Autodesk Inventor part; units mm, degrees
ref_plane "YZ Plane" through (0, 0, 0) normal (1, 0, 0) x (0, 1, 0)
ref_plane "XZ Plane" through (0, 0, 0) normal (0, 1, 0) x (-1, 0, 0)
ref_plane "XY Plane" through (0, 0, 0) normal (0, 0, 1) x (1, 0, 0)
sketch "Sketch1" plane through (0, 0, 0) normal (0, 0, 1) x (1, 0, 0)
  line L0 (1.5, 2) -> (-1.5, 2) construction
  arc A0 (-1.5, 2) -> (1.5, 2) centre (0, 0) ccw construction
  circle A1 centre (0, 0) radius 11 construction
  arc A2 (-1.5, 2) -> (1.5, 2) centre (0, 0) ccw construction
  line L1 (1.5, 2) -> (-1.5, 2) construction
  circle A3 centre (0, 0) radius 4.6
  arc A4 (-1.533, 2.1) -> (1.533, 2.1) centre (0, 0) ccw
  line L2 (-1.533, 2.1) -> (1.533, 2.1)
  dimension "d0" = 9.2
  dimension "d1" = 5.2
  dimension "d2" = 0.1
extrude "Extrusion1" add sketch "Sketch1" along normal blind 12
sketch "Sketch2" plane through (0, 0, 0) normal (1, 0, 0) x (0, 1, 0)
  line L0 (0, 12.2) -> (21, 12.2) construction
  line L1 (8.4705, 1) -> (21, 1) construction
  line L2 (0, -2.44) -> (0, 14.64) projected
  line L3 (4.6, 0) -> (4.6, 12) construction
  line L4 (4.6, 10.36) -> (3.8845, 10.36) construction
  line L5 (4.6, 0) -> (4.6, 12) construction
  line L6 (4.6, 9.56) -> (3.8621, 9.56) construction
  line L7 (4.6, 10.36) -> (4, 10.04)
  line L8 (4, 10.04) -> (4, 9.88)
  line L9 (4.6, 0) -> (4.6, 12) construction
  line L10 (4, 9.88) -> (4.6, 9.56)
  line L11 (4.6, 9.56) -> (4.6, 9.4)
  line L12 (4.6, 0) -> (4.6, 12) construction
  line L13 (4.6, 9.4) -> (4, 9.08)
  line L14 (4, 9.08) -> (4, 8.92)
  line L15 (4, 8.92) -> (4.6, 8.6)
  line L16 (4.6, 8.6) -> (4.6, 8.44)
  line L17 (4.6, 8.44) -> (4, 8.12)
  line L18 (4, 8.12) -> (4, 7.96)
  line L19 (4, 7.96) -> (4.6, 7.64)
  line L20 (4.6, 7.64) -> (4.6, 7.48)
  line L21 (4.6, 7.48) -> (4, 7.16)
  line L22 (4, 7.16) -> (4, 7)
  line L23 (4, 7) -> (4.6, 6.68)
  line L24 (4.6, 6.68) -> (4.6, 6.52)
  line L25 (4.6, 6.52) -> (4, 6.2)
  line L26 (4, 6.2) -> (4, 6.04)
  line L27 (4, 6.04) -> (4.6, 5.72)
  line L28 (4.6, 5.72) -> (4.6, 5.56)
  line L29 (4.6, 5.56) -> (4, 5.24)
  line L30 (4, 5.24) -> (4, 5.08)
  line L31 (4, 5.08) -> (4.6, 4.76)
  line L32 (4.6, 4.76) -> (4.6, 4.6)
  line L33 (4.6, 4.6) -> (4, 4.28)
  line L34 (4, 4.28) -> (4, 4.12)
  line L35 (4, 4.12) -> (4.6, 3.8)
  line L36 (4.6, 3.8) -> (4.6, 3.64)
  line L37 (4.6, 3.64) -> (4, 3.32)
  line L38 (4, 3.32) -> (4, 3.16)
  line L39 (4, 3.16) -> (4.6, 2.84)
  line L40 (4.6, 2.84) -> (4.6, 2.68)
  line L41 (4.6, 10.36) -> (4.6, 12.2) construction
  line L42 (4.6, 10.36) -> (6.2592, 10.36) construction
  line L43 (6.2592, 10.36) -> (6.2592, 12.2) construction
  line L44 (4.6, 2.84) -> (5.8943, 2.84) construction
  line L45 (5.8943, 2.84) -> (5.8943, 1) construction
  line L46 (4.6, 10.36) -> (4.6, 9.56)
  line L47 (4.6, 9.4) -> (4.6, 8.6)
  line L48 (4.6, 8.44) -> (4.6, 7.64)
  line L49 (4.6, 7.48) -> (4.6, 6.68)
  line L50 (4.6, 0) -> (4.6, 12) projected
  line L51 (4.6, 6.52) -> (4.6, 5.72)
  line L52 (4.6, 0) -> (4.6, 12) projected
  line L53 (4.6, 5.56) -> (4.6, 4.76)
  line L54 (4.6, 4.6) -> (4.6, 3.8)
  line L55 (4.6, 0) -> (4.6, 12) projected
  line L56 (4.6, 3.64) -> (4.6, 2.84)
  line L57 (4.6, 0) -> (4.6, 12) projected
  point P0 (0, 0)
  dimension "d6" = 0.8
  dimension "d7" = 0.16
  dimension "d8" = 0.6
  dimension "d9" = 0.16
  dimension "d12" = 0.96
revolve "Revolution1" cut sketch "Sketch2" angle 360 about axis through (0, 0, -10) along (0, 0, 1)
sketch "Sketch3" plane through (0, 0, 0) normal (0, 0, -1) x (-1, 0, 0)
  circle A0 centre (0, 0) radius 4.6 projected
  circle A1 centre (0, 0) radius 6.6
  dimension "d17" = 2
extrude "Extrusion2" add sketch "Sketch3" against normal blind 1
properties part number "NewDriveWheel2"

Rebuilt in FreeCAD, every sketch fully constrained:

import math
import FreeCAD as App
import Part
import Sketcher
Q = App.Units.Quantity

doc = App.newDocument("Part")
body = doc.addObject("PartDesign::Body", "Body")

sketch1 = body.newObject("Sketcher::SketchObject", "Sketch")
sketch1.AttachmentSupport = (doc.getObject("XY_Plane"), [""])
sketch1.MapMode = "FlatFace"
sketch1.addGeometry(Part.Circle(App.Vector(0, 0, 0), App.Vector(0, 0, 1), 4.6), False)
sketch1.addGeometry(Part.ArcOfCircle(Part.Circle(App.Vector(0, 0, 0), App.Vector(0, 0, 1), 2.6), math.radians(126), math.radians(414)), False)
sketch1.addGeometry(Part.LineSegment(App.Vector(-1.5, 2.1, 0), App.Vector(1.5, 2.1, 0)), False)
sketch1.addConstraint(Sketcher.Constraint("Coincident", 1, 1, 2, 1))
sketch1.addConstraint(Sketcher.Constraint("Coincident", 2, 2, 1, 2))
sketch1.addConstraint(Sketcher.Constraint("Horizontal", 2))
sketch1.addConstraint(Sketcher.Constraint("Coincident", 0, 3, -1, 1))
sketch1.addConstraint(Sketcher.Constraint("Coincident", 1, 3, -1, 1))
sketch1.addConstraint(Sketcher.Constraint("Diameter", 0, Q("9.2 mm")))
sketch1.addConstraint(Sketcher.Constraint("Radius", 1, Q("2.6 mm")))
sketch1.addConstraint(Sketcher.Constraint("DistanceY", -1, 1, 1, 1, Q("2.1 mm")))
pad1 = body.newObject("PartDesign::Pad", "Pad")
pad1.Profile = sketch1
pad1.Length = 12

sketch2 = body.newObject("Sketcher::SketchObject", "Sketch001")
sketch2.AttachmentSupport = (doc.getObject("YZ_Plane"), [""])
sketch2.MapMode = "FlatFace"
sketch2.addGeometry(Part.LineSegment(App.Vector(4.6, 9.56, 0), App.Vector(4.6, 10.36, 0)), False)
sketch2.addGeometry(Part.LineSegment(App.Vector(4.6, 10.36, 0), App.Vector(4, 10.04, 0)), False)
sketch2.addGeometry(Part.LineSegment(App.Vector(4, 10.04, 0), App.Vector(4, 9.88, 0)), False)
sketch2.addGeometry(Part.LineSegment(App.Vector(4, 9.88, 0), App.Vector(4.6, 9.56, 0)), False)
sketch2.addGeometry(Part.LineSegment(App.Vector(4.6, 2.84, 0), App.Vector(4.6, 3.64, 0)), False)
sketch2.addGeometry(Part.LineSegment(App.Vector(4.6, 3.64, 0), App.Vector(4, 3.32, 0)), False)
sketch2.addGeometry(Part.LineSegment(App.Vector(4, 3.32, 0), App.Vector(4, 3.16, 0)), False)
sketch2.addGeometry(Part.LineSegment(App.Vector(4, 3.16, 0), App.Vector(4.6, 2.84, 0)), False)
sketch2.addGeometry(Part.LineSegment(App.Vector(4.6, 3.8, 0), App.Vector(4.6, 4.6, 0)), False)
sketch2.addGeometry(Part.LineSegment(App.Vector(4.6, 4.6, 0), App.Vector(4, 4.28, 0)), False)
sketch2.addGeometry(Part.LineSegment(App.Vector(4, 4.28, 0), App.Vector(4, 4.12, 0)), False)
sketch2.addGeometry(Part.LineSegment(App.Vector(4, 4.12, 0), App.Vector(4.6, 3.8, 0)), False)
sketch2.addGeometry(Part.LineSegment(App.Vector(4.6, 4.76, 0), App.Vector(4.6, 5.56, 0)), False)
sketch2.addGeometry(Part.LineSegment(App.Vector(4.6, 5.56, 0), App.Vector(4, 5.24, 0)), False)
sketch2.addGeometry(Part.LineSegment(App.Vector(4, 5.24, 0), App.Vector(4, 5.08, 0)), False)
sketch2.addGeometry(Part.LineSegment(App.Vector(4, 5.08, 0), App.Vector(4.6, 4.76, 0)), False)
sketch2.addGeometry(Part.LineSegment(App.Vector(4.6, 5.72, 0), App.Vector(4.6, 6.52, 0)), False)
sketch2.addGeometry(Part.LineSegment(App.Vector(4.6, 6.52, 0), App.Vector(4, 6.2, 0)), False)
sketch2.addGeometry(Part.LineSegment(App.Vector(4, 6.2, 0), App.Vector(4, 6.04, 0)), False)
sketch2.addGeometry(Part.LineSegment(App.Vector(4, 6.04, 0), App.Vector(4.6, 5.72, 0)), False)
sketch2.addGeometry(Part.LineSegment(App.Vector(4.6, 6.68, 0), App.Vector(4.6, 7.48, 0)), False)
sketch2.addGeometry(Part.LineSegment(App.Vector(4.6, 7.48, 0), App.Vector(4, 7.16, 0)), False)
sketch2.addGeometry(Part.LineSegment(App.Vector(4, 7.16, 0), App.Vector(4, 7, 0)), False)
sketch2.addGeometry(Part.LineSegment(App.Vector(4, 7, 0), App.Vector(4.6, 6.68, 0)), False)
sketch2.addGeometry(Part.LineSegment(App.Vector(4.6, 7.64, 0), App.Vector(4.6, 8.44, 0)), False)
sketch2.addGeometry(Part.LineSegment(App.Vector(4.6, 8.44, 0), App.Vector(4, 8.12, 0)), False)
sketch2.addGeometry(Part.LineSegment(App.Vector(4, 8.12, 0), App.Vector(4, 7.96, 0)), False)
sketch2.addGeometry(Part.LineSegment(App.Vector(4, 7.96, 0), App.Vector(4.6, 7.64, 0)), False)
sketch2.addGeometry(Part.LineSegment(App.Vector(4.6, 8.6, 0), App.Vector(4.6, 9.4, 0)), False)
sketch2.addGeometry(Part.LineSegment(App.Vector(4.6, 9.4, 0), App.Vector(4, 9.08, 0)), False)
sketch2.addGeometry(Part.LineSegment(App.Vector(4, 9.08, 0), App.Vector(4, 8.92, 0)), False)
sketch2.addGeometry(Part.LineSegment(App.Vector(4, 8.92, 0), App.Vector(4.6, 8.6, 0)), False)
sketch2.addConstraint(Sketcher.Constraint("Coincident", 0, 2, 1, 1))
sketch2.addConstraint(Sketcher.Constraint("Coincident", 1, 2, 2, 1))
sketch2.addConstraint(Sketcher.Constraint("Coincident", 2, 2, 3, 1))
sketch2.addConstraint(Sketcher.Constraint("Coincident", 3, 2, 0, 1))
sketch2.addConstraint(Sketcher.Constraint("Coincident", 4, 2, 5, 1))
sketch2.addConstraint(Sketcher.Constraint("Coincident", 5, 2, 6, 1))
sketch2.addConstraint(Sketcher.Constraint("Coincident", 6, 2, 7, 1))
sketch2.addConstraint(Sketcher.Constraint("Coincident", 7, 2, 4, 1))
sketch2.addConstraint(Sketcher.Constraint("Coincident", 8, 2, 9, 1))
sketch2.addConstraint(Sketcher.Constraint("Coincident", 9, 2, 10, 1))
sketch2.addConstraint(Sketcher.Constraint("Coincident", 10, 2, 11, 1))
sketch2.addConstraint(Sketcher.Constraint("Coincident", 11, 2, 8, 1))
sketch2.addConstraint(Sketcher.Constraint("Coincident", 12, 2, 13, 1))
sketch2.addConstraint(Sketcher.Constraint("Coincident", 13, 2, 14, 1))
sketch2.addConstraint(Sketcher.Constraint("Coincident", 14, 2, 15, 1))
sketch2.addConstraint(Sketcher.Constraint("Coincident", 15, 2, 12, 1))
sketch2.addConstraint(Sketcher.Constraint("Coincident", 16, 2, 17, 1))
sketch2.addConstraint(Sketcher.Constraint("Coincident", 17, 2, 18, 1))
sketch2.addConstraint(Sketcher.Constraint("Coincident", 18, 2, 19, 1))
sketch2.addConstraint(Sketcher.Constraint("Coincident", 19, 2, 16, 1))
sketch2.addConstraint(Sketcher.Constraint("Coincident", 20, 2, 21, 1))
sketch2.addConstraint(Sketcher.Constraint("Coincident", 21, 2, 22, 1))
sketch2.addConstraint(Sketcher.Constraint("Coincident", 22, 2, 23, 1))
sketch2.addConstraint(Sketcher.Constraint("Coincident", 23, 2, 20, 1))
sketch2.addConstraint(Sketcher.Constraint("Coincident", 24, 2, 25, 1))
sketch2.addConstraint(Sketcher.Constraint("Coincident", 25, 2, 26, 1))
sketch2.addConstraint(Sketcher.Constraint("Coincident", 26, 2, 27, 1))
sketch2.addConstraint(Sketcher.Constraint("Coincident", 27, 2, 24, 1))
sketch2.addConstraint(Sketcher.Constraint("Coincident", 28, 2, 29, 1))
sketch2.addConstraint(Sketcher.Constraint("Coincident", 29, 2, 30, 1))
sketch2.addConstraint(Sketcher.Constraint("Coincident", 30, 2, 31, 1))
sketch2.addConstraint(Sketcher.Constraint("Coincident", 31, 2, 28, 1))
sketch2.addConstraint(Sketcher.Constraint("Vertical", 0))
sketch2.addConstraint(Sketcher.Constraint("Vertical", 2))
sketch2.addConstraint(Sketcher.Constraint("Vertical", 4))
sketch2.addConstraint(Sketcher.Constraint("Vertical", 6))
sketch2.addConstraint(Sketcher.Constraint("Vertical", 8))
sketch2.addConstraint(Sketcher.Constraint("Vertical", 10))
sketch2.addConstraint(Sketcher.Constraint("Vertical", 12))
sketch2.addConstraint(Sketcher.Constraint("Vertical", 14))
sketch2.addConstraint(Sketcher.Constraint("Vertical", 16))
sketch2.addConstraint(Sketcher.Constraint("Vertical", 18))
sketch2.addConstraint(Sketcher.Constraint("Vertical", 20))
sketch2.addConstraint(Sketcher.Constraint("Vertical", 22))
sketch2.addConstraint(Sketcher.Constraint("Vertical", 24))
sketch2.addConstraint(Sketcher.Constraint("Vertical", 26))
sketch2.addConstraint(Sketcher.Constraint("Vertical", 28))
sketch2.addConstraint(Sketcher.Constraint("Vertical", 30))
sketch2.addConstraint(Sketcher.Constraint("Parallel", 1, 5))
sketch2.addConstraint(Sketcher.Constraint("Parallel", 3, 7))
sketch2.addConstraint(Sketcher.Constraint("Parallel", 5, 9))
sketch2.addConstraint(Sketcher.Constraint("Parallel", 7, 11))
sketch2.addConstraint(Sketcher.Constraint("Parallel", 9, 13))
sketch2.addConstraint(Sketcher.Constraint("Parallel", 11, 15))
sketch2.addConstraint(Sketcher.Constraint("Parallel", 13, 17))
sketch2.addConstraint(Sketcher.Constraint("Parallel", 15, 19))
sketch2.addConstraint(Sketcher.Constraint("Parallel", 17, 21))
sketch2.addConstraint(Sketcher.Constraint("Parallel", 19, 23))
sketch2.addConstraint(Sketcher.Constraint("Parallel", 21, 25))
sketch2.addConstraint(Sketcher.Constraint("Parallel", 23, 27))
sketch2.addConstraint(Sketcher.Constraint("Parallel", 25, 29))
sketch2.addConstraint(Sketcher.Constraint("Parallel", 27, 31))
sketch2.addConstraint(Sketcher.Constraint("Vertical", 3, 2, 4, 2))
sketch2.addConstraint(Sketcher.Constraint("Vertical", 2, 2, 5, 2))
sketch2.addConstraint(Sketcher.Constraint("Vertical", 7, 2, 8, 2))
sketch2.addConstraint(Sketcher.Constraint("Vertical", 6, 2, 9, 2))
sketch2.addConstraint(Sketcher.Constraint("Vertical", 11, 2, 12, 2))
sketch2.addConstraint(Sketcher.Constraint("Vertical", 10, 2, 13, 2))
sketch2.addConstraint(Sketcher.Constraint("Vertical", 15, 2, 16, 2))
sketch2.addConstraint(Sketcher.Constraint("Vertical", 14, 2, 17, 2))
sketch2.addConstraint(Sketcher.Constraint("Vertical", 19, 2, 20, 2))
sketch2.addConstraint(Sketcher.Constraint("Vertical", 18, 2, 21, 2))
sketch2.addConstraint(Sketcher.Constraint("Vertical", 23, 2, 24, 2))
sketch2.addConstraint(Sketcher.Constraint("Vertical", 22, 2, 25, 2))
sketch2.addConstraint(Sketcher.Constraint("Vertical", 27, 2, 28, 2))
sketch2.addConstraint(Sketcher.Constraint("Vertical", 26, 2, 29, 2))
sketch2.addConstraint(Sketcher.Constraint("Equal", 0, 4))
sketch2.addConstraint(Sketcher.Constraint("Equal", 4, 8))
sketch2.addConstraint(Sketcher.Constraint("Equal", 8, 12))
sketch2.addConstraint(Sketcher.Constraint("Equal", 12, 16))
sketch2.addConstraint(Sketcher.Constraint("Equal", 16, 20))
sketch2.addConstraint(Sketcher.Constraint("Equal", 20, 24))
sketch2.addConstraint(Sketcher.Constraint("Equal", 24, 28))
sketch2.addConstraint(Sketcher.Constraint("Equal", 1, 3))
sketch2.addConstraint(Sketcher.Constraint("DistanceY", 0, 1, 0, 2, Q("0.8 mm")))
sketch2.addConstraint(Sketcher.Constraint("DistanceY", 2, 2, 2, 1, Q("0.16 mm")))
sketch2.addConstraint(Sketcher.Constraint("DistanceX", 1, 2, 0, 2, Q("0.6 mm")))
sketch2.addConstraint(Sketcher.Constraint("DistanceY", 5, 2, 10, 2, Q("0.8 mm")))
sketch2.addConstraint(Sketcher.Constraint("DistanceY", 9, 2, 14, 2, Q("0.8 mm")))
sketch2.addConstraint(Sketcher.Constraint("DistanceY", 13, 2, 18, 2, Q("0.8 mm")))
sketch2.addConstraint(Sketcher.Constraint("DistanceY", 17, 2, 22, 2, Q("0.8 mm")))
sketch2.addConstraint(Sketcher.Constraint("DistanceY", 21, 2, 26, 2, Q("0.8 mm")))
sketch2.addConstraint(Sketcher.Constraint("DistanceY", 29, 2, 2, 2, Q("0.8 mm")))
sketch2.addConstraint(Sketcher.Constraint("DistanceY", 25, 2, 30, 2, Q("0.8 mm")))
sketch2.addConstraint(Sketcher.Constraint("DistanceX", -1, 1, 1, 2, Q("4 mm")))
sketch2.addConstraint(Sketcher.Constraint("DistanceY", -1, 1, 22, 2, Q("7 mm")))
groove = body.newObject("PartDesign::Groove", "Groove")
groove.Profile = sketch2
groove.ReferenceAxis = (sketch2, ["V_Axis"])
groove.Angle = 360

sketch3 = body.newObject("Sketcher::SketchObject", "Sketch002")
sketch3.AttachmentSupport = (doc.getObject("XY_Plane"), [""])
sketch3.MapMode = "FlatFace"
sketch3.addGeometry(Part.Circle(App.Vector(0, 0, 0), App.Vector(0, 0, 1), 6.6), False)
sketch3.addGeometry(Part.Circle(App.Vector(0, 0, 0), App.Vector(0, 0, 1), 4.6), False)
sketch3.addConstraint(Sketcher.Constraint("Coincident", 0, 3, -1, 1))
sketch3.addConstraint(Sketcher.Constraint("Coincident", 1, 3, -1, 1))
sketch3.addConstraint(Sketcher.Constraint("Diameter", 0, Q("13.2 mm")))
sketch3.addConstraint(Sketcher.Constraint("Diameter", 1, Q("9.2 mm")))
pad2 = body.newObject("PartDesign::Pad", "Pad001")
pad2.Profile = sketch3
pad2.Length = 1

doc.recompute()
